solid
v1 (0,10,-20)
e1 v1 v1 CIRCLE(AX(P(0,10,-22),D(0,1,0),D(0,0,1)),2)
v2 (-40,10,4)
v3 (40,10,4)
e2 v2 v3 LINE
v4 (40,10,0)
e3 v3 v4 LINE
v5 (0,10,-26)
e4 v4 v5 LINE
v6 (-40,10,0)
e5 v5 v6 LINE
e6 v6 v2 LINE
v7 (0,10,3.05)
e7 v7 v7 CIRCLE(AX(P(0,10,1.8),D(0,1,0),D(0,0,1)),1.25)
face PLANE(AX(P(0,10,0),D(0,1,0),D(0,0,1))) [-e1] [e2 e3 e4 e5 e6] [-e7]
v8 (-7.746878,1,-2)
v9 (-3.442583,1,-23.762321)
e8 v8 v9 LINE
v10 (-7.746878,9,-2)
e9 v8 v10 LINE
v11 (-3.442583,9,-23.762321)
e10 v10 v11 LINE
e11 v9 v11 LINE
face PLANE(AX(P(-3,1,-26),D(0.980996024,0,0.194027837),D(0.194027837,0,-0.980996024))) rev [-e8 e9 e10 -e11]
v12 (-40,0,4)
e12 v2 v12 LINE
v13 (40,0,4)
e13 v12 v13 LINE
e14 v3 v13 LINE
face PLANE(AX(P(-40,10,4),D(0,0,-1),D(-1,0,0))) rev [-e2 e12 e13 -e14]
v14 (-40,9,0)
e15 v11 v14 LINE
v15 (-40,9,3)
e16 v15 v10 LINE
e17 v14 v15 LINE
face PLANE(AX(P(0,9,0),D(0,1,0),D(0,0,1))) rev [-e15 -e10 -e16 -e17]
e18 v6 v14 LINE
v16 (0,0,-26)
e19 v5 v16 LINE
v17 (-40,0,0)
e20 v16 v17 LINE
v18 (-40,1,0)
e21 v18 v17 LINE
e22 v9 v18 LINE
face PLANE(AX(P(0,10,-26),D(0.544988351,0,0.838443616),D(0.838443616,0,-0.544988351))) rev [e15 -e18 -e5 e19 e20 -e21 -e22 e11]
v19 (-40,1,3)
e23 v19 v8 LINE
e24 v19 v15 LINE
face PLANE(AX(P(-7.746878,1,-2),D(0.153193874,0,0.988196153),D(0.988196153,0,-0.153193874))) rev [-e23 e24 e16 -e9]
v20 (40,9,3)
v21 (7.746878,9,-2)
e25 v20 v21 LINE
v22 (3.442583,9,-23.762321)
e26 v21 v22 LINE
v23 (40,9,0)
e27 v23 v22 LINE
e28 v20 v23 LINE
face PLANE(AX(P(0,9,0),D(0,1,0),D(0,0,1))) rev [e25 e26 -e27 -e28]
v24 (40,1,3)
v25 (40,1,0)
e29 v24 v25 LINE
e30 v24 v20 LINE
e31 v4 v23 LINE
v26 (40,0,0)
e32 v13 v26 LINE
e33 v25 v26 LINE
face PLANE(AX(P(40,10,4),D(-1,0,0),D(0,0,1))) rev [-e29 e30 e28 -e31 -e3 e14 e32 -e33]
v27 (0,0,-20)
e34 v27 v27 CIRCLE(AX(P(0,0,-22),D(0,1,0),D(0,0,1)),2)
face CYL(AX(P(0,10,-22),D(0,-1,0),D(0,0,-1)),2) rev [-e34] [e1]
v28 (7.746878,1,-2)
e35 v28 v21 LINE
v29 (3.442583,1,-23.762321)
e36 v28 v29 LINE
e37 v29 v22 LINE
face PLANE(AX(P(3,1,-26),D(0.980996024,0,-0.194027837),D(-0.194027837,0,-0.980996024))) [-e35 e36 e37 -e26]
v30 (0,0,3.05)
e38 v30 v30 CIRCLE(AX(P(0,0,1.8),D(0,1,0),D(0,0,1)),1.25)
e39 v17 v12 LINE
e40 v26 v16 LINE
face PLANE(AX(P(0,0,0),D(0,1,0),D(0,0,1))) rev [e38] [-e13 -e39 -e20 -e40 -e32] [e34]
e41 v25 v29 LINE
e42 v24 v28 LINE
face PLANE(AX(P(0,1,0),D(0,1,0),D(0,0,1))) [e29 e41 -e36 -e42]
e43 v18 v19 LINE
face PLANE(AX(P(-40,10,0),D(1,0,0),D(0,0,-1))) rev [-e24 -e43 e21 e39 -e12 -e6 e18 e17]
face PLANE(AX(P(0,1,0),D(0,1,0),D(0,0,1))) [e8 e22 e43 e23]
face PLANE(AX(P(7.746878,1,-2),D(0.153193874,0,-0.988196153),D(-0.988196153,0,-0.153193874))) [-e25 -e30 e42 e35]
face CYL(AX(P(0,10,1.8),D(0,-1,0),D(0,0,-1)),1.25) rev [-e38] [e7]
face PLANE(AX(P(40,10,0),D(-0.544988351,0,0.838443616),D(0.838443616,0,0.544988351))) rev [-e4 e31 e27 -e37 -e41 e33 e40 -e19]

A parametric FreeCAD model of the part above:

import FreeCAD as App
import Part
import Sketcher
from FreeCAD import Vector
Q = App.Units.Quantity


def add_polygon(sketch, points):
    """Adds a closed chain of lines whose ends are joined by coincident constraints."""
    first, n = sketch.GeometryCount, len(points)
    for a, b in zip(points, points[1:] + points[:1]):
        sketch.addGeometry(Part.LineSegment(App.Vector(*a, 0), App.Vector(*b, 0)), False)
    for i in range(n):
        sketch.addConstraint(Sketcher.Constraint("Coincident", first + i, 2, first + (i + 1) % n, 1))

doc = App.newDocument("Part")
body = doc.addObject("PartDesign::Body", "Body")

sketch1 = body.newObject("Sketcher::SketchObject", "Sketch")
sketch1.AttachmentSupport = (doc.getObject("XZ_Plane"), [""])
sketch1.MapMode = "FlatFace"
add_polygon(sketch1, [(0, -26), (-40, 0), (-40, 4), (40, 4), (40, 0)])
sketch1.addGeometry(Part.Circle(Vector(0, 1.8, 0), Vector(0, 0, 1), 1.2), False)
sketch1.addGeometry(Part.Circle(Vector(0, -22, 0), Vector(0, 0, 1), 2), False)
sketch1.addConstraint([
    Sketcher.Constraint("Vertical", 1),
    Sketcher.Constraint("Horizontal", 2),
    Sketcher.Constraint("Vertical", 3),
    Sketcher.Constraint("Symmetric", 0, 2, 3, 2, -1, 1),
    Sketcher.Constraint("PointOnObject", 5, 3, -2),
    Sketcher.Constraint("PointOnObject", 6, 3, -2),
    Sketcher.Constraint("PointOnObject", 0, 2, -1),
    Sketcher.Constraint("PointOnObject", 4, 2, -2),
    Sketcher.Constraint("Diameter", 6, Q("4 mm")),
    Sketcher.Constraint("Diameter", 5, Q("2.5 mm")),
    Sketcher.Constraint("DistanceX", 2, 1, 2, 2, Q("80 mm")),
    Sketcher.Constraint("DistanceY", 1, 1, 1, 2, Q("4 mm")),
    Sketcher.Constraint("DistanceY", 6, 3, -1, 1, Q("22 mm")),
    Sketcher.Constraint("DistanceY", 4, 2, -1, 1, Q("26 mm")),
    Sketcher.Constraint("DistanceY", -1, 1, 5, 3, Q("1.8 mm")),
])
pad1 = body.newObject("PartDesign::Pad", "Pad")
pad1.Profile = sketch1
pad1.Length = 10
pad1.Reversed = True

sketch2 = body.newObject("Sketcher::SketchObject", "Sketch001")
sketch2.AttachmentSupport = (doc.getObject("XZ_Plane"), [""])
sketch2.MapMode = "FlatFace"
sketch2.AttachmentOffset = App.Placement(Vector(0, 0, -9), App.Rotation())
add_polygon(sketch2, [(-8, -2), (-3, -26), (-40, -3), (-40, 3)])
sketch2.addConstraint([
    Sketcher.Constraint("Vertical", 2),
    Sketcher.Constraint("DistanceX", 0, 2, -1, 1, Q("3 mm")),
    Sketcher.Constraint("DistanceY", 0, 2, -1, 1, Q("26 mm")),
    Sketcher.Constraint("DistanceX", 1, 2, -1, 1, Q("40 mm")),
    Sketcher.Constraint("DistanceY", -1, 1, 2, 2, Q("3 mm")),
    Sketcher.Constraint("DistanceY", 3, 2, -1, 1, Q("2 mm")),
    Sketcher.Constraint("DistanceY", 2, 1, 2, 2, Q("6.063809 mm")),
    Sketcher.Constraint("Distance", 0, Q("24.464931 mm")),
])
pocket1 = body.newObject("PartDesign::Pocket", "Pocket")
pocket1.Profile = sketch2
pocket1.Length = 8
pocket1.Reversed = True
doc.recompute()

mirrored = body.newObject("PartDesign::Mirrored", "Mirrored")
mirrored.Originals = [pocket1]
mirrored.MirrorPlane = (doc.getObject("YZ_Plane"), [""])
body.Tip = mirrored

doc.recompute()
